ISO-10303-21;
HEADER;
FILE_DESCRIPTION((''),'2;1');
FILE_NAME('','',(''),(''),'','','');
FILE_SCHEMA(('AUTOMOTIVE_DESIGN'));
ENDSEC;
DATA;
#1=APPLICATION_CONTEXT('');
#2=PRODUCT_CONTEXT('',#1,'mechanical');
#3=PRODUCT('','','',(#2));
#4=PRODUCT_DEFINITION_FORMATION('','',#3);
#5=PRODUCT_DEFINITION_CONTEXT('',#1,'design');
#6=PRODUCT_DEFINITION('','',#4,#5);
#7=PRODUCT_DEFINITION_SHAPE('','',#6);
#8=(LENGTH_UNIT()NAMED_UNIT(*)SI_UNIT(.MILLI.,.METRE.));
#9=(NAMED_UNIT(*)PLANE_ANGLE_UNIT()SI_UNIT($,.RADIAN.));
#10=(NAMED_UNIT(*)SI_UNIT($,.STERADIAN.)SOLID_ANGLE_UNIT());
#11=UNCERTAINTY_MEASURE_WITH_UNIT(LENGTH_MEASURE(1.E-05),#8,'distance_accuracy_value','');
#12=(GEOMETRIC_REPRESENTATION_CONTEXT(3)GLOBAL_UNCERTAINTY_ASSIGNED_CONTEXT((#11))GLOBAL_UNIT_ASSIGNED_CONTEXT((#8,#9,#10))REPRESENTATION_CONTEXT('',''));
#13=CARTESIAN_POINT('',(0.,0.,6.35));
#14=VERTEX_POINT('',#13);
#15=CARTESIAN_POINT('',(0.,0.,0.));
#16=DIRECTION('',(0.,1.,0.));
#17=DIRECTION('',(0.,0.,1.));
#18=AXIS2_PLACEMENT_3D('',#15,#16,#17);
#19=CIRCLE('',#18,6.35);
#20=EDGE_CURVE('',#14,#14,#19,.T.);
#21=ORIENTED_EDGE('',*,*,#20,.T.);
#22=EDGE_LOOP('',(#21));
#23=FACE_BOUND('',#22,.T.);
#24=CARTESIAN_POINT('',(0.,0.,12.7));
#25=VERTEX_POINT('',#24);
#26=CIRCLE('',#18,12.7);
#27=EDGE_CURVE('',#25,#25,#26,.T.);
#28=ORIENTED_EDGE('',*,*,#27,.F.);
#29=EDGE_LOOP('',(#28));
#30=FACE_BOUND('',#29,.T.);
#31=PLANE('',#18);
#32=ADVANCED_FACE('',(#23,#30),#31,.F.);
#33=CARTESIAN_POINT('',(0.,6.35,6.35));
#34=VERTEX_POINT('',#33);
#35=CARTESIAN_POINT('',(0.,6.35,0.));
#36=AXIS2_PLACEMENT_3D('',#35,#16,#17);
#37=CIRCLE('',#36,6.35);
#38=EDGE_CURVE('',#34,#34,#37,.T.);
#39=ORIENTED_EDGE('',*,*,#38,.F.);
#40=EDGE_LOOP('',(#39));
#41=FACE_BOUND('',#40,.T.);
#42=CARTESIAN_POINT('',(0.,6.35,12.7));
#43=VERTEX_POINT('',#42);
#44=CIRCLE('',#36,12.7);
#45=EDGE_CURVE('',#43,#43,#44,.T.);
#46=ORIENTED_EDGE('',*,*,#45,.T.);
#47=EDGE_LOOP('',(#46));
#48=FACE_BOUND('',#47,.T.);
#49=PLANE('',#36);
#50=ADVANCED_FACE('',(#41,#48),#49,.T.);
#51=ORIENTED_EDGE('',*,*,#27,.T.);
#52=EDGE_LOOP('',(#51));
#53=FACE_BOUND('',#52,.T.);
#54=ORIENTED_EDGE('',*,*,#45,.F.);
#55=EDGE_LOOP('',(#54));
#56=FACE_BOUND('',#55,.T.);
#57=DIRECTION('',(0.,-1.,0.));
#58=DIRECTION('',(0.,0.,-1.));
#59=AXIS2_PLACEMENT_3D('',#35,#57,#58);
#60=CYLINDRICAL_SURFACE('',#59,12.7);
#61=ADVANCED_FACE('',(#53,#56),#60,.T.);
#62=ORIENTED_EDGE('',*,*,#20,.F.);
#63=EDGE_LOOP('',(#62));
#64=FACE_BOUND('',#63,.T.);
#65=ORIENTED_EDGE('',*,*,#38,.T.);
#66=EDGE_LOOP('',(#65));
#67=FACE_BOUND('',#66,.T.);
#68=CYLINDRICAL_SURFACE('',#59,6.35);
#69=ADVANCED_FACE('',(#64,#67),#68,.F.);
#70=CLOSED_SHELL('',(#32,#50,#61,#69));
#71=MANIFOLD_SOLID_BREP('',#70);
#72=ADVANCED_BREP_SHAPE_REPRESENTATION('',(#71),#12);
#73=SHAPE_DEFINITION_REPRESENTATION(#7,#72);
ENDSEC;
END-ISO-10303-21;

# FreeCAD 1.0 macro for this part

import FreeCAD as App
import Part
import Sketcher

V = App.Vector
Q = App.Units.Quantity

doc = App.newDocument("Part")
body = doc.addObject("PartDesign::Body", "Body")

# Sketch on XZ plane
sketch1 = doc.addObject("Sketcher::SketchObject", "Sketch")
body.addObject(sketch1)
sketch1.AttachmentSupport = (doc.XZ_Plane, [""])
sketch1.MapMode = "FlatFace"
sketch1.addGeometry(Part.Circle(V(0, 0, 0), V(0, 0, 1), 13), False)
sketch1.addGeometry(Part.Circle(V(0, 0, 0), V(0, 0, 1), 6), False)
sketch1.addConstraint(Sketcher.Constraint("Coincident", 0, 3, -1, 1))
sketch1.addConstraint(Sketcher.Constraint("Coincident", 1, 3, -1, 1))
sketch1.addConstraint(Sketcher.Constraint("Diameter", 0, Q("1 in")))
sketch1.addConstraint(Sketcher.Constraint("Diameter", 1, Q("0.5 in")))
pad1 = doc.addObject("PartDesign::Pad", "Pad")
body.addObject(pad1)
pad1.Profile = sketch1
pad1.Length = Q("0.25 in")
pad1.Reversed = True

doc.recompute()
